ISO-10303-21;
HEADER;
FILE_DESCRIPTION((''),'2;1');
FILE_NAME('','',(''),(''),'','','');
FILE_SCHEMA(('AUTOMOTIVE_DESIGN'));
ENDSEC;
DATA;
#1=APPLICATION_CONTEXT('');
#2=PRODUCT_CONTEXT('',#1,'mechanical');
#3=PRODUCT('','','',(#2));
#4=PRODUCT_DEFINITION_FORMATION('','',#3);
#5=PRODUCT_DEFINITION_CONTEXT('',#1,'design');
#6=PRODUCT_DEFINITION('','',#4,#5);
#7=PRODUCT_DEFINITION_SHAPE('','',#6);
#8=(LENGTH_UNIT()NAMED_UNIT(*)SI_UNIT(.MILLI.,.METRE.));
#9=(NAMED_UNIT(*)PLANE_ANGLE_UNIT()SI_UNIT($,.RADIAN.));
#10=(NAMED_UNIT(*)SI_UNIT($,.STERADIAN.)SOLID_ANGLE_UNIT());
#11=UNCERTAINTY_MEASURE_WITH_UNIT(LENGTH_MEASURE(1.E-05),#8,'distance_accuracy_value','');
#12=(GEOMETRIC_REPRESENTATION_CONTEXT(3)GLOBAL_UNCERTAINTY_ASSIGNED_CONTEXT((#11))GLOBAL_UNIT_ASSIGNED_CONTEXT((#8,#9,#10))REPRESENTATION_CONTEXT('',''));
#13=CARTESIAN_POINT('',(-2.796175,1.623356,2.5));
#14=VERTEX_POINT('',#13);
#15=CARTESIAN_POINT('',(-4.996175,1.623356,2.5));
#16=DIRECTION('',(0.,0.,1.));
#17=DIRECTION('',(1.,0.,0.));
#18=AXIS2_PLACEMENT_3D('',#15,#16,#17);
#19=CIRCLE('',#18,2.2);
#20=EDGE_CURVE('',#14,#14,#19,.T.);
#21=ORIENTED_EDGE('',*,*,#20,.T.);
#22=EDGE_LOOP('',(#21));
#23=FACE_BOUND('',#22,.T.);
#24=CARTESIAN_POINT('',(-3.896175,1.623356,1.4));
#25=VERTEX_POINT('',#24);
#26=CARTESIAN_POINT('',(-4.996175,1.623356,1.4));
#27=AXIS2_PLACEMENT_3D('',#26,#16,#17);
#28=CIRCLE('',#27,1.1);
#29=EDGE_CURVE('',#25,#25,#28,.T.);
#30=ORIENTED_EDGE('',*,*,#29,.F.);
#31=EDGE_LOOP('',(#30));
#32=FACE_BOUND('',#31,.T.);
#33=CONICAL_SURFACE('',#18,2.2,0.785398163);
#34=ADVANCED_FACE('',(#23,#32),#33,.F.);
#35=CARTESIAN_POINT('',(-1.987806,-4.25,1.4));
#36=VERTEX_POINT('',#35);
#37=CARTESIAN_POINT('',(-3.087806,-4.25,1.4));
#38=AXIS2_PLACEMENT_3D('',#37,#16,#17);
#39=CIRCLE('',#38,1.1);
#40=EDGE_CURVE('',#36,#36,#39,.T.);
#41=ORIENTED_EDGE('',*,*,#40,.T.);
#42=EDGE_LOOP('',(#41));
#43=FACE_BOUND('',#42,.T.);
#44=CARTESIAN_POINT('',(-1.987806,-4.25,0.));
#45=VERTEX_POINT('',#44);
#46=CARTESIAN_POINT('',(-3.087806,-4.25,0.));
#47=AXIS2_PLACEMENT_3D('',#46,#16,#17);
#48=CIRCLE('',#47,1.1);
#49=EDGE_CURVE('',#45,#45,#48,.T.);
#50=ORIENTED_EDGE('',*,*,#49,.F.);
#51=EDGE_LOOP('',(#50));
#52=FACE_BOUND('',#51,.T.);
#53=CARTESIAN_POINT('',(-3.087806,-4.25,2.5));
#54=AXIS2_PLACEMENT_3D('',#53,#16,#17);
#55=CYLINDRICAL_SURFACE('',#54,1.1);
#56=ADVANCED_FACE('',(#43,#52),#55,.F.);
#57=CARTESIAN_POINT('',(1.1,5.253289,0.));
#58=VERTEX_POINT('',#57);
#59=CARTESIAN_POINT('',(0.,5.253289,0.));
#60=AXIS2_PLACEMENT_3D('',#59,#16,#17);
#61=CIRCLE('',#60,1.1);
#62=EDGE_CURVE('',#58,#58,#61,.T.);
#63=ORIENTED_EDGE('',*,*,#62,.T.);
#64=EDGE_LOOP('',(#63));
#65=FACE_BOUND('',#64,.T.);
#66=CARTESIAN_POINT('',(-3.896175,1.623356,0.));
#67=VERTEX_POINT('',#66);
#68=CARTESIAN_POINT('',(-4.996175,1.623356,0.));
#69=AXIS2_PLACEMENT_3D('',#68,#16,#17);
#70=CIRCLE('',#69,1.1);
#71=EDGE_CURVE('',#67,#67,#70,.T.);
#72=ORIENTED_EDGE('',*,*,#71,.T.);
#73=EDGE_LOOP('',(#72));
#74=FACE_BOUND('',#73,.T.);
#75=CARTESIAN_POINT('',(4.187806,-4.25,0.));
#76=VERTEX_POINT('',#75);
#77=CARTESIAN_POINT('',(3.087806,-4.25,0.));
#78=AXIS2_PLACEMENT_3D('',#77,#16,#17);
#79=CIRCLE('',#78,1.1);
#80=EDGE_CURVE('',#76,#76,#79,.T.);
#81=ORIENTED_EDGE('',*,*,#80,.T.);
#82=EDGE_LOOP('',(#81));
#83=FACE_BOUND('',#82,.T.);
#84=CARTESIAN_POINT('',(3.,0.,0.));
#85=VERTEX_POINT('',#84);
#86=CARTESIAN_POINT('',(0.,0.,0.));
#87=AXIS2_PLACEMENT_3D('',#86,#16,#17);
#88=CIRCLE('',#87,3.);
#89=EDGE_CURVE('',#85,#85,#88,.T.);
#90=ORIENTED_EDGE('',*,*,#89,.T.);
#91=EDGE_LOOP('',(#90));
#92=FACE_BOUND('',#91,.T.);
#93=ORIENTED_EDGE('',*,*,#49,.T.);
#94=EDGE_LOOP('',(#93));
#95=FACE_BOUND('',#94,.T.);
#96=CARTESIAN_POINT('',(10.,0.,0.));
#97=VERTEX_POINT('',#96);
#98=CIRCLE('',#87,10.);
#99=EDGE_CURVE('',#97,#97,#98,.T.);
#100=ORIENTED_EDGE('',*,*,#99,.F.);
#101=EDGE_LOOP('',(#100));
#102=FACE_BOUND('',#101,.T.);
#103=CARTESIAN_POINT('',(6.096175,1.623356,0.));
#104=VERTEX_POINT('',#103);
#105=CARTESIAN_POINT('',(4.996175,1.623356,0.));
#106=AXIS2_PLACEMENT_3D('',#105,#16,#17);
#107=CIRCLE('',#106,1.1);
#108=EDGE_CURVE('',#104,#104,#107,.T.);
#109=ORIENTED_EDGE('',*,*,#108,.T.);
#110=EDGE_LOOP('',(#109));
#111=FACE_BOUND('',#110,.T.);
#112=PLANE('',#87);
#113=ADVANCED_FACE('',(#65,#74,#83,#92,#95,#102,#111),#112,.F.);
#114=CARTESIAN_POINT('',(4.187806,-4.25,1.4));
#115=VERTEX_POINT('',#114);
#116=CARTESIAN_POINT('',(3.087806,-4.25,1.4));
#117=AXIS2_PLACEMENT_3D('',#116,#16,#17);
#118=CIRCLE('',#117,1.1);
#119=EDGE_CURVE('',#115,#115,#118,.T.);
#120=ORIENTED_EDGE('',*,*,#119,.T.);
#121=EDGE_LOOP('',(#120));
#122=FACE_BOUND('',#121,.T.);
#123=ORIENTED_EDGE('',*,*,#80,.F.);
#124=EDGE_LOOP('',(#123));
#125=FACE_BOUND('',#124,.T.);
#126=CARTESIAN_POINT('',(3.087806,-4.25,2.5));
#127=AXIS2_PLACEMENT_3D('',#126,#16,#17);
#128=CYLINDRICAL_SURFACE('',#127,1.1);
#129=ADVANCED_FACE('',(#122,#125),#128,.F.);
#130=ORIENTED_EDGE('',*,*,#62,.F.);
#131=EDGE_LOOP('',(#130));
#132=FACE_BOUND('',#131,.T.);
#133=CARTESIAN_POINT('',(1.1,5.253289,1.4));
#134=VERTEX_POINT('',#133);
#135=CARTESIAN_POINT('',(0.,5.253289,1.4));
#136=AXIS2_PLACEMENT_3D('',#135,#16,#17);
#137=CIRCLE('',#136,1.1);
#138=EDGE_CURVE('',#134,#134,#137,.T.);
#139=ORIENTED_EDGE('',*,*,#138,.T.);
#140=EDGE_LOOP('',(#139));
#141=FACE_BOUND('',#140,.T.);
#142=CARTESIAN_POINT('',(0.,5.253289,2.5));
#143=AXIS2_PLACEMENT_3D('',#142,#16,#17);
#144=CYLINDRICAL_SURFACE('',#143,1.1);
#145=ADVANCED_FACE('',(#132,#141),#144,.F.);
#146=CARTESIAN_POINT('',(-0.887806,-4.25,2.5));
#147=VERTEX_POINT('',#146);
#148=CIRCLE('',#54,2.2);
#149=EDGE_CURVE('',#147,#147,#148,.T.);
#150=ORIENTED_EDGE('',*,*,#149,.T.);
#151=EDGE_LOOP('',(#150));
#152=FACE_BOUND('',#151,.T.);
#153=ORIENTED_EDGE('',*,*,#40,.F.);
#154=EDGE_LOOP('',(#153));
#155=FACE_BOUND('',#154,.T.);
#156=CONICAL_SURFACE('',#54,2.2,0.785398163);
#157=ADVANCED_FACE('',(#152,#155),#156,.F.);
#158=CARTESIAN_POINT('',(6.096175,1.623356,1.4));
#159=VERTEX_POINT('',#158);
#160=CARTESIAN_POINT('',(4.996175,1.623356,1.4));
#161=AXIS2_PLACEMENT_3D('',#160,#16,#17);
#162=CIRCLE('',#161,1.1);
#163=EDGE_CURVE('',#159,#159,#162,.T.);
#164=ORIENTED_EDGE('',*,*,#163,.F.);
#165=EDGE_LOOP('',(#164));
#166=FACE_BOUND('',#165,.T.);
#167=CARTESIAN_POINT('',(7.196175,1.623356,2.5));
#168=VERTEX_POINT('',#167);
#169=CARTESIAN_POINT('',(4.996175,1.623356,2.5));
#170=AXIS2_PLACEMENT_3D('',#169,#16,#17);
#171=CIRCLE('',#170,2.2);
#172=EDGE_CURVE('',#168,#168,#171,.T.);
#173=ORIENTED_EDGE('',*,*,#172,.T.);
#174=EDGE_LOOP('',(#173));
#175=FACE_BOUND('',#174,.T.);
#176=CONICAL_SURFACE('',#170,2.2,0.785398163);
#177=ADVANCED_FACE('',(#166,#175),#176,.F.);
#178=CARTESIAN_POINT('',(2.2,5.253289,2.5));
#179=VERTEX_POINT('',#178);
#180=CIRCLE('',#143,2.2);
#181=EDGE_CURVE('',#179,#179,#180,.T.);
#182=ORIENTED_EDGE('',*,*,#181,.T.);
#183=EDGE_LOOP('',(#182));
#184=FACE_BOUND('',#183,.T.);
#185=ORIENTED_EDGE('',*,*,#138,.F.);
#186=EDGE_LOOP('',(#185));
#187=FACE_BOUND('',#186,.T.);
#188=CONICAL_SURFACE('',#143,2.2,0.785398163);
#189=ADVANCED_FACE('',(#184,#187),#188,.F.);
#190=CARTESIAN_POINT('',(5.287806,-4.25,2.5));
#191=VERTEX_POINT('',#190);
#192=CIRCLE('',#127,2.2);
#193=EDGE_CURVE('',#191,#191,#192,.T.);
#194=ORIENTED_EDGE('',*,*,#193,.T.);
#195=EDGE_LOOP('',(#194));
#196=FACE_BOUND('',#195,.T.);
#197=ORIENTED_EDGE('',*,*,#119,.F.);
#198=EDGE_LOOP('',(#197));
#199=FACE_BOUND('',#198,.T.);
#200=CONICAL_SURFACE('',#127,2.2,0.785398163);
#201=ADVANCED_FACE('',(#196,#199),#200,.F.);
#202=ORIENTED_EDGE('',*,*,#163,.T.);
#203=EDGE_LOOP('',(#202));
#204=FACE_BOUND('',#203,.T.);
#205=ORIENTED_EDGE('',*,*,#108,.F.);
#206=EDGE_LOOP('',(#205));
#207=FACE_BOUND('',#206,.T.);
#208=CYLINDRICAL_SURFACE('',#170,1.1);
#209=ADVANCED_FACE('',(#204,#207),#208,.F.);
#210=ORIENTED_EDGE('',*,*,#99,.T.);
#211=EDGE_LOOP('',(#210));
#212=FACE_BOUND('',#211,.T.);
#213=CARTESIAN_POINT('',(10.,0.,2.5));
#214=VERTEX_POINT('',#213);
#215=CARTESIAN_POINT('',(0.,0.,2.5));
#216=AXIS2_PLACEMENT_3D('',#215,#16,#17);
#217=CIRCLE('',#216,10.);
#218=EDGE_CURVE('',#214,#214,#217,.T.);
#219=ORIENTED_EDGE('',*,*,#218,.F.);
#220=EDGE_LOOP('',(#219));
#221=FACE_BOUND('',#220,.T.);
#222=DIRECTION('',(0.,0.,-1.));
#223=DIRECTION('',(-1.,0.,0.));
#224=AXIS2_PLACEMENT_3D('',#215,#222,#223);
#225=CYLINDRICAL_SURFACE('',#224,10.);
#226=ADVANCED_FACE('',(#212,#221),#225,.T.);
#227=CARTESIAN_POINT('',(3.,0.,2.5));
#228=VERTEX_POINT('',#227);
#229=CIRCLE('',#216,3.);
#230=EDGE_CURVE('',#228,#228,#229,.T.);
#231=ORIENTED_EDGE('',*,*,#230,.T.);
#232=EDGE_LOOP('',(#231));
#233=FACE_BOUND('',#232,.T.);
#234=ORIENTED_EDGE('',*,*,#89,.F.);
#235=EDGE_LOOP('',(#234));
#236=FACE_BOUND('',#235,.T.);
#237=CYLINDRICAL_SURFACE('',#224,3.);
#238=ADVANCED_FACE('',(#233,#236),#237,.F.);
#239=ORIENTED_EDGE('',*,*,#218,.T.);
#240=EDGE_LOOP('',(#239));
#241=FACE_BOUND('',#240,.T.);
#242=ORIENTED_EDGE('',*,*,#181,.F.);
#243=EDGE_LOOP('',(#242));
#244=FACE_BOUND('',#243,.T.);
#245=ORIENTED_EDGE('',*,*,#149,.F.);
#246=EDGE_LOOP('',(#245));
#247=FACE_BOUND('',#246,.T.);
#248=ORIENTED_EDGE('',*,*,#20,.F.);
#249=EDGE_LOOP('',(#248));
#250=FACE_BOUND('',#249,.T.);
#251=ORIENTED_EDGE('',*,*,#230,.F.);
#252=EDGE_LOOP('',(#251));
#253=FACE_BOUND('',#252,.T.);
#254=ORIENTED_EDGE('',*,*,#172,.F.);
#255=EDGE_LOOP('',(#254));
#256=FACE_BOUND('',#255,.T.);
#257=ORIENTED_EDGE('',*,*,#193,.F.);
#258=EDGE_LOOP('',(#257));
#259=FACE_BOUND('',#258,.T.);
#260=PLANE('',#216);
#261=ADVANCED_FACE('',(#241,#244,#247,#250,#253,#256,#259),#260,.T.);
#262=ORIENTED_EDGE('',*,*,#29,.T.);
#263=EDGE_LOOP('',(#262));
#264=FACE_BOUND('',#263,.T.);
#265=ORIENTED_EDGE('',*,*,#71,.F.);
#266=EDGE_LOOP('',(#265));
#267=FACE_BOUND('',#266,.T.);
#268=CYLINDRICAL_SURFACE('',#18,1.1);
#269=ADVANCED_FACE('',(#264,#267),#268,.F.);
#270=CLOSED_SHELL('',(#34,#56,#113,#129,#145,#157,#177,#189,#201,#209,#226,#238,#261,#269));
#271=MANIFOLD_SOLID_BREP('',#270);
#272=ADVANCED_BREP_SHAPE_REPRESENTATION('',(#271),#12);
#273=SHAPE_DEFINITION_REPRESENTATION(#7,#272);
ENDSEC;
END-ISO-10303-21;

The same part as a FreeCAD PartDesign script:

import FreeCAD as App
import Part
import Sketcher
from FreeCAD import Vector

doc = App.newDocument("Part")
body = doc.addObject("PartDesign::Body", "Body")

# Sketch on XY plane
sketch1 = doc.addObject("Sketcher::SketchObject", "Sketch")
body.addObject(sketch1)
sketch1.AttachmentSupport = (doc.XY_Plane, [""])
sketch1.MapMode = "FlatFace"
sketch1.addGeometry([
    Part.Circle(Vector(0, 0, 0), Vector(0, 0, 1), 10),
    Part.Circle(Vector(0, 0, 0), Vector(0, 0, 1), 3),
], False)
sketch1.addConstraint([
    Sketcher.Constraint("Coincident", 0, 3, -1, 1),
    Sketcher.Constraint("Coincident", 1, 3, -1, 1),
    Sketcher.Constraint("Diameter", 0, 20.0),
    Sketcher.Constraint("Diameter", 1, 6.0),
])
pad1 = doc.addObject("PartDesign::Pad", "Pad")
body.addObject(pad1)
pad1.Profile = sketch1
pad1.Length = 2.5

# Sketch on XY plane
sketch2 = doc.addObject("Sketcher::SketchObject", "Sketch001")
body.addObject(sketch2)
sketch2.AttachmentSupport = (doc.XY_Plane, [""])
sketch2.MapMode = "FlatFace"
sketch2.AttachmentOffset = App.Placement(Vector(0, 0, 2.5), App.Rotation())
sketch2.addGeometry([
    Part.Circle(Vector(0, 5.253289, 0), Vector(0, 0, 1), 1.1),  # 0
    Part.Circle(Vector(4.996175, 1.623356, 0), Vector(0, 0, 1), 1.1),  # 1
    Part.Circle(Vector(3.087806, -4.25, 0), Vector(0, 0, 1), 1.1),  # 2
    Part.Circle(Vector(-4.996175, 1.623356, 0), Vector(0, 0, 1), 1.1),  # 3
    Part.Circle(Vector(-3.087806, -4.25, 0), Vector(0, 0, 1), 1.1),  # 4
], False)
sketch2.addConstraint([
    Sketcher.Constraint("Equal", 0, 1),
    Sketcher.Constraint("Equal", 1, 2),
    Sketcher.Constraint("Equal", 2, 3),
    Sketcher.Constraint("Equal", 3, 4),
    Sketcher.Constraint("Symmetric", 1, 3, 3, 3, -2),
    Sketcher.Constraint("Symmetric", 2, 3, 4, 3, -2),
    Sketcher.Constraint("PointOnObject", 0, 3, -2),
    Sketcher.Constraint("Diameter", 0, 2.2),
    Sketcher.Constraint("DistanceY", 2, 3, -1, 1, 4.25),
    Sketcher.Constraint("DistanceY", -1, 1, 0, 3, 5.253289),
    Sketcher.Constraint("DistanceX", 2, 3, 1, 3, 1.908369),
    Sketcher.Constraint("DistanceX", 3, 3, 1, 3, 9.992349),
    Sketcher.Constraint("DistanceY", -1, 1, 1, 3, 1.623356),
])
doc.recompute()
hole = doc.addObject("PartDesign::Hole", "Hole")
body.addObject(hole)
hole.Profile = sketch2
hole.ThreadType = "None"
hole.Diameter = 2.2
hole.DepthType = "ThroughAll"
hole.HoleCutType = "Countersink"
hole.HoleCutDiameter = 4.4
hole.HoleCutCountersinkAngle = 90

doc.recompute()
